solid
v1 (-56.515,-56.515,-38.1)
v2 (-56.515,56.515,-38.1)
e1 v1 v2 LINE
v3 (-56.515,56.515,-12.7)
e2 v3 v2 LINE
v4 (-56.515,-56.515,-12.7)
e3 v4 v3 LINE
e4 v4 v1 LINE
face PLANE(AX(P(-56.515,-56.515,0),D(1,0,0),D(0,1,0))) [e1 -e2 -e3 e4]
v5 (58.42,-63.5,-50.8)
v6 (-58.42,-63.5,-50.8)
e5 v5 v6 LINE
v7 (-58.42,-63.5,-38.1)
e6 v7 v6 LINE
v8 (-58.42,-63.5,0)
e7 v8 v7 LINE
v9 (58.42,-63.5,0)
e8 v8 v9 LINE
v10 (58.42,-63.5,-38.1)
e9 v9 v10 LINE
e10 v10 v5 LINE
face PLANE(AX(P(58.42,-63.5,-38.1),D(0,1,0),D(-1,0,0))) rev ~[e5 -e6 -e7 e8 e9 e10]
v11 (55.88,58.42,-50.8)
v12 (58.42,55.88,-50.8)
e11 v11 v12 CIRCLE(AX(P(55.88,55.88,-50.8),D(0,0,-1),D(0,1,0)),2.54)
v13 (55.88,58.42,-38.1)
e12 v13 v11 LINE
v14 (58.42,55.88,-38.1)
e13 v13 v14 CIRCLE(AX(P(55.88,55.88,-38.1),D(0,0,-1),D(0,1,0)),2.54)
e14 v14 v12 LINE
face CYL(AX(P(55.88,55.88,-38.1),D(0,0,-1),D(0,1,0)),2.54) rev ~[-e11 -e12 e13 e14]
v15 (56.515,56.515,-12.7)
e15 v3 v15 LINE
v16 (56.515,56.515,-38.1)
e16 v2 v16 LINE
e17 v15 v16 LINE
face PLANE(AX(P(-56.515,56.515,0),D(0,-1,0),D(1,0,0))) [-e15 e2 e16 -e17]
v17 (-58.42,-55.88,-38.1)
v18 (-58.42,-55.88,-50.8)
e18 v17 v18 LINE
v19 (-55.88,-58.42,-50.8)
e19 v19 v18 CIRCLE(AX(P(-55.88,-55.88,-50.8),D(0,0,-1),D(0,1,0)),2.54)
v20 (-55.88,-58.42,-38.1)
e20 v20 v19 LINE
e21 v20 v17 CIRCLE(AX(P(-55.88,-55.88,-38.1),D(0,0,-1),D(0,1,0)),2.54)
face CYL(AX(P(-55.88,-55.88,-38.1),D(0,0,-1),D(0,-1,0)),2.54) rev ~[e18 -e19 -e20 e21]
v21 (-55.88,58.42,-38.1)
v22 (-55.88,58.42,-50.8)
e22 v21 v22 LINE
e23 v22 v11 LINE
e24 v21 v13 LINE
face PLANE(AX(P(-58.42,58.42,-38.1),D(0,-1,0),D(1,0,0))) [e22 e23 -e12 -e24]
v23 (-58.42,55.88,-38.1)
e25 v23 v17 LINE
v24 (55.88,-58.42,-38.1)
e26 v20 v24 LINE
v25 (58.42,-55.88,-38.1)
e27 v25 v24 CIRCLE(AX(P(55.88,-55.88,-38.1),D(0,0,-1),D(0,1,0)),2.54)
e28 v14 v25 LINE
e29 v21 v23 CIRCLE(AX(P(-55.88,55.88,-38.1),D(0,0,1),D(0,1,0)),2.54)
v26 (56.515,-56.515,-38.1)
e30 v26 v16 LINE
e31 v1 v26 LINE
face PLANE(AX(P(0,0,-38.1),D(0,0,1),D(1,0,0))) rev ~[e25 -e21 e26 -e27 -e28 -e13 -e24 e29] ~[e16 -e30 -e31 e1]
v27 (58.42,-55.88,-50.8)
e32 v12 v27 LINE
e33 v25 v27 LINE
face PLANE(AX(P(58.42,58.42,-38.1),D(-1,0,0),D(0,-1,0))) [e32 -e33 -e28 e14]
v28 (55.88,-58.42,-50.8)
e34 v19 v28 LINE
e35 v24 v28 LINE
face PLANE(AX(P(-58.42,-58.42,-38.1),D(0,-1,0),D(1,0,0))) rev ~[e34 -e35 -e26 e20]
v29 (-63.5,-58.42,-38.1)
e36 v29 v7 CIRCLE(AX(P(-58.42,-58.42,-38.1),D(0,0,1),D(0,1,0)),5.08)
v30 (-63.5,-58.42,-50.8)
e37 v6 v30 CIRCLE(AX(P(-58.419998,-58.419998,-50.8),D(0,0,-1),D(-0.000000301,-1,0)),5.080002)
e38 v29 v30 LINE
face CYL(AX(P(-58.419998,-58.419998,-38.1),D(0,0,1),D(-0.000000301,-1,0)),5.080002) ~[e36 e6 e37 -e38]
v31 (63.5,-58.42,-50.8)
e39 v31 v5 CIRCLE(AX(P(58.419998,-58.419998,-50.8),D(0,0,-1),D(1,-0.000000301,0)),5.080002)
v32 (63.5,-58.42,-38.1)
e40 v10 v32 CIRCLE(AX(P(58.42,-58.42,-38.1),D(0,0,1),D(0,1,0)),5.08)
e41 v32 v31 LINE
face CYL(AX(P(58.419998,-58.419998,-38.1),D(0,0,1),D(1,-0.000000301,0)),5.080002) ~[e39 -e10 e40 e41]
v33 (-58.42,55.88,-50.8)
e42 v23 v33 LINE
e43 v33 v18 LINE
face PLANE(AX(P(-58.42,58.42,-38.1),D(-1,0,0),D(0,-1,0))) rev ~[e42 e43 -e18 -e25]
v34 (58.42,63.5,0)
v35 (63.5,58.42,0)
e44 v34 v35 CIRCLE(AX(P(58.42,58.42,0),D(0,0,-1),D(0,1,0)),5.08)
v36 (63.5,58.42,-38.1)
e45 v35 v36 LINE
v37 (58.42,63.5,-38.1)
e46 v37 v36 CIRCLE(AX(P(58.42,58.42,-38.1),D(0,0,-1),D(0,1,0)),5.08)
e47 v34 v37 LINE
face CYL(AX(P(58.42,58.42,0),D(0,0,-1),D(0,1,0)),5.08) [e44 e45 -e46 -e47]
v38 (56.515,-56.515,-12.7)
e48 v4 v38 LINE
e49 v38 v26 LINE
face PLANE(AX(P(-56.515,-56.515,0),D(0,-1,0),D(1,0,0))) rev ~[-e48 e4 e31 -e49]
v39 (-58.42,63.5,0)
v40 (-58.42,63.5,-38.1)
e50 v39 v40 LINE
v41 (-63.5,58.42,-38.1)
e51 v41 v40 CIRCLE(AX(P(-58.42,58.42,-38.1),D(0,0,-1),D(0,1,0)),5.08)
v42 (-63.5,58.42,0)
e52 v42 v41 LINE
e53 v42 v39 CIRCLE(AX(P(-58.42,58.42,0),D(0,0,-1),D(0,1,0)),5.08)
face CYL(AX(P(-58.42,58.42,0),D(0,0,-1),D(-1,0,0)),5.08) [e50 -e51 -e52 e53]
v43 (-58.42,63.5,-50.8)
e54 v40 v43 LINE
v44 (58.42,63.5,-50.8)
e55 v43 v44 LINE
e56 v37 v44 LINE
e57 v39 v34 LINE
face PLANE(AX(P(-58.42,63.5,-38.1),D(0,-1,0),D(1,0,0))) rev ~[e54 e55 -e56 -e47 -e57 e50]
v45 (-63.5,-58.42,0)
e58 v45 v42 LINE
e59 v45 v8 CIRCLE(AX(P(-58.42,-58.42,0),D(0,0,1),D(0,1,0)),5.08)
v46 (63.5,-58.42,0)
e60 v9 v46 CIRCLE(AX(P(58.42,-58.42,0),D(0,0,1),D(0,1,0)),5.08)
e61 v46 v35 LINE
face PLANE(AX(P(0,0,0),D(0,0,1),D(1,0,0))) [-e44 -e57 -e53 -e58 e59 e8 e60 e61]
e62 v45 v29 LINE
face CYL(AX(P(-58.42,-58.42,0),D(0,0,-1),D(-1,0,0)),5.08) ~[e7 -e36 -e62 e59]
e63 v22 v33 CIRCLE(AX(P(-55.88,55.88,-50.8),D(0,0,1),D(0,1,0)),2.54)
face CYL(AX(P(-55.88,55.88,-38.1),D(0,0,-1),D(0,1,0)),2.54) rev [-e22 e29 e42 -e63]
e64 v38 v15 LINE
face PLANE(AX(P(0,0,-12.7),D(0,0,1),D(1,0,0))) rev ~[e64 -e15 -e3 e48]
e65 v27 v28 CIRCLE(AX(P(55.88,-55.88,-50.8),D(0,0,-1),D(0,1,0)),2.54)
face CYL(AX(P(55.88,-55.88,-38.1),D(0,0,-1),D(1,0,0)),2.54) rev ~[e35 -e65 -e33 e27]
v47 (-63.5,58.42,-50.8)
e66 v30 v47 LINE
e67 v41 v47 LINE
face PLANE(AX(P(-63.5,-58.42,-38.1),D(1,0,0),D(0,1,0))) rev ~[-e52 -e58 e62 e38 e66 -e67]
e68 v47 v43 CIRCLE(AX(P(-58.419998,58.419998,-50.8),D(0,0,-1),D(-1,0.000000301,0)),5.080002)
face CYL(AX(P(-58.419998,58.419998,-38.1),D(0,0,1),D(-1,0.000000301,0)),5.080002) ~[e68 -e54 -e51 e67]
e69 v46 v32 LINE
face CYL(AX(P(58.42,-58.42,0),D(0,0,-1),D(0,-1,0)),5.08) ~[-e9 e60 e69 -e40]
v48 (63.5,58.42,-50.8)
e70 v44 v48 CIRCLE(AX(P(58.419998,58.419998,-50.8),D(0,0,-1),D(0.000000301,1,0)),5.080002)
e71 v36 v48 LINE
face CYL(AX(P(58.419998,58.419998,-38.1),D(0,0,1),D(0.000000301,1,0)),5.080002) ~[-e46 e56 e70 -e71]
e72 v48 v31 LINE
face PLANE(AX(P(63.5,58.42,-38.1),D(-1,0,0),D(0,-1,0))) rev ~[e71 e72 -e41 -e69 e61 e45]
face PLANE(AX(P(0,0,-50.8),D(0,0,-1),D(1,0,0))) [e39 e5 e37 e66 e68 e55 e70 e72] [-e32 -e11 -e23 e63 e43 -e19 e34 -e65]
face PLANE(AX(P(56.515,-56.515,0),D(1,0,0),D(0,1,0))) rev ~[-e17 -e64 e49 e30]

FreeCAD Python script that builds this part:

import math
import FreeCAD as App
import Part
import Sketcher

V = App.Vector
Q = App.Units.Quantity


def edges_at(feature, points):
    """Names of the edges that pass closest to the given points."""
    edges = feature.Shape.Edges
    near = lambda p: min(range(len(edges)), key=lambda i: edges[i].distToShape(Part.Vertex(*p))[0])
    return sorted({f"Edge{near(p) + 1}" for p in points})

doc = App.newDocument("Part")
params = doc.addObject("Spreadsheet::Sheet", "Params")
for row, (alias, value) in enumerate([
    ("sketch1_width", "5 in"),
    ("sketch1_width2", "4.45 in"),
    ("pad1_length", "1.5 in"),
    ("sketch2_width", "4.45 in"),
    ("pad2_length", "0.5 in"),
    ("fillet_radius", "0.2 in"),
    ("sketch3_radius", "0.2000001 in"),
    ("sketch3_width", "4.6 in"),
    ("pad3_length", "0.5 in"),
    ("fillet2_radius", "0.1 in"),
], start=1):
    params.set(f"A{row}", alias)
    params.set(f"B{row}", "=" + value)
    params.setAlias(f"B{row}", alias)

body = doc.addObject("PartDesign::Body", "Body")

sketch1 = body.newObject("Sketcher::SketchObject", "Sketch")
sketch1.AttachmentSupport = (doc.getObject("XY_Plane"), [""])
sketch1.MapMode = "FlatFace"
sketch1.addGeometry([
    Part.LineSegment(V(-64, 64, 0), V(-64, -64, 0)),
    Part.LineSegment(V(-64, -64, 0), V(64, -64, 0)),
    Part.LineSegment(V(64, -64, 0), V(64, 64, 0)),
    Part.LineSegment(V(64, 64, 0), V(-64, 64, 0)),
    Part.LineSegment(V(57, -57, 0), V(-57, -57, 0)),
    Part.LineSegment(V(-57, -57, 0), V(-57, 57, 0)),
    Part.LineSegment(V(-57, 57, 0), V(57, 57, 0)),
    Part.LineSegment(V(57, 57, 0), V(57, -57, 0)),
], False)
sketch1.addConstraint([
    Sketcher.Constraint("Coincident", 0, 2, 1, 1),
    Sketcher.Constraint("Coincident", 1, 2, 2, 1),
    Sketcher.Constraint("Coincident", 2, 2, 3, 1),
    Sketcher.Constraint("Coincident", 3, 2, 0, 1),
    Sketcher.Constraint("Coincident", 4, 2, 5, 1),
    Sketcher.Constraint("Coincident", 5, 2, 6, 1),
    Sketcher.Constraint("Coincident", 6, 2, 7, 1),
    Sketcher.Constraint("Coincident", 7, 2, 4, 1),
    Sketcher.Constraint("Vertical", 0),
    Sketcher.Constraint("Horizontal", 1),
    Sketcher.Constraint("Vertical", 2),
    Sketcher.Constraint("Horizontal", 3),
    Sketcher.Constraint("Horizontal", 4),
    Sketcher.Constraint("Vertical", 5),
    Sketcher.Constraint("Horizontal", 6),
    Sketcher.Constraint("Vertical", 7),
    Sketcher.Constraint("Symmetric", 0, 2, 2, 2, -1, 1),
    Sketcher.Constraint("Symmetric", 4, 2, 6, 2, -1, 1),
    Sketcher.Constraint("Equal", 3, 0),
    Sketcher.Constraint("Equal", 6, 5),
    Sketcher.Constraint("DistanceX", 1, 1, 1, 2, Q("5 in")),
    Sketcher.Constraint("DistanceX", 4, 2, 4, 1, Q("4.45 in")),
])
sketch1.setExpression("Constraints[20]", "Params.sketch1_width")
sketch1.setExpression("Constraints[21]", "Params.sketch1_width2")
pad1 = body.newObject("PartDesign::Pad", "Pad")
pad1.Profile = sketch1
pad1.setExpression("Length", "Params.pad1_length")
pad1.Reversed = True

sketch2 = body.newObject("Sketcher::SketchObject", "Sketch001")
sketch2.AttachmentSupport = (doc.getObject("XY_Plane"), [""])
sketch2.MapMode = "FlatFace"
sketch2.addGeometry([
    Part.LineSegment(V(-57, 57, 0), V(-57, -57, 0)),
    Part.LineSegment(V(-57, -57, 0), V(57, -57, 0)),
    Part.LineSegment(V(57, -57, 0), V(57, 57, 0)),
    Part.LineSegment(V(57, 57, 0), V(-57, 57, 0)),
], False)
sketch2.addConstraint([
    Sketcher.Constraint("Coincident", 0, 2, 1, 1),
    Sketcher.Constraint("Coincident", 1, 2, 2, 1),
    Sketcher.Constraint("Coincident", 2, 2, 3, 1),
    Sketcher.Constraint("Coincident", 3, 2, 0, 1),
    Sketcher.Constraint("Vertical", 0),
    Sketcher.Constraint("Horizontal", 1),
    Sketcher.Constraint("Vertical", 2),
    Sketcher.Constraint("Horizontal", 3),
    Sketcher.Constraint("Symmetric", 0, 2, 2, 2, -1, 1),
    Sketcher.Constraint("Equal", 3, 0),
    Sketcher.Constraint("DistanceX", 1, 1, 1, 2, Q("4.45 in")),
])
sketch2.setExpression("Constraints[10]", "Params.sketch2_width")
pad2 = body.newObject("PartDesign::Pad", "Pad001")
pad2.Profile = sketch2
pad2.setExpression("Length", "Params.pad2_length")
pad2.Reversed = True
doc.recompute()

fillet = body.newObject("PartDesign::Fillet", "Fillet")
fillet.Base = (pad2, edges_at(pad2, [
    (-63.5, -63.5, -19.05),
    (-63.5, 63.5, -19.05),
    (63.5, 63.5, -19.05),
    (63.5, -63.5, -19.05),
]))
fillet.setExpression("Radius", "Params.fillet_radius")

sketch3 = body.newObject("Sketcher::SketchObject", "Sketch002")
sketch3.AttachmentSupport = (doc.getObject("XY_Plane"), [""])
sketch3.MapMode = "FlatFace"
sketch3.AttachmentOffset = App.Placement(V(0, 0, -1.5 * 25.4), App.Rotation())
sketch3.addGeometry([
    Part.ArcOfCircle(Part.Circle(V(58, -58, 0), V(0, 0, 1), 5), math.radians(-90), math.radians(0)),
    Part.LineSegment(V(58, -64, 0), V(-58, -64, 0)),
    Part.ArcOfCircle(Part.Circle(V(-58, -58, 0), V(0, 0, 1), 5), math.radians(-180), math.radians(-90)),
    Part.LineSegment(V(-64, -58, 0), V(-64, 58, 0)),
    Part.ArcOfCircle(Part.Circle(V(-58, 58, 0), V(0, 0, 1), 5), math.radians(90), math.radians(180)),
    Part.LineSegment(V(-58, 64, 0), V(58, 64, 0)),
    Part.ArcOfCircle(Part.Circle(V(58, 58, 0), V(0, 0, 1), 5), math.radians(0), math.radians(90)),
    Part.LineSegment(V(64, 58, 0), V(64, -58, 0)),
    Part.LineSegment(V(58, 58, 0), V(-58, 58, 0)),
    Part.LineSegment(V(-58, 58, 0), V(-58, -58, 0)),
    Part.LineSegment(V(-58, -58, 0), V(58, -58, 0)),
    Part.LineSegment(V(58, -58, 0), V(58, 58, 0)),
], False)
sketch3.addConstraint([
    Sketcher.Constraint("Tangent", 0, 1, 1, 1),
    Sketcher.Constraint("Tangent", 1, 2, 2, 2),
    Sketcher.Constraint("Tangent", 2, 1, 3, 1),
    Sketcher.Constraint("Tangent", 3, 2, 4, 2),
    Sketcher.Constraint("Tangent", 4, 1, 5, 1),
    Sketcher.Constraint("Tangent", 5, 2, 6, 2),
    Sketcher.Constraint("Tangent", 6, 1, 7, 1),
    Sketcher.Constraint("Tangent", 7, 2, 0, 2),
    Sketcher.Constraint("Coincident", 8, 2, 9, 1),
    Sketcher.Constraint("Coincident", 9, 2, 10, 1),
    Sketcher.Constraint("Coincident", 10, 2, 11, 1),
    Sketcher.Constraint("Coincident", 11, 2, 8, 1),
    Sketcher.Constraint("Horizontal", 1),
    Sketcher.Constraint("Vertical", 3),
    Sketcher.Constraint("Horizontal", 5),
    Sketcher.Constraint("Vertical", 7),
    Sketcher.Constraint("Horizontal", 8),
    Sketcher.Constraint("Vertical", 9),
    Sketcher.Constraint("Horizontal", 10),
    Sketcher.Constraint("Vertical", 11),
    Sketcher.Constraint("Coincident", 8, 2, 4, 3),
    Sketcher.Constraint("Coincident", 9, 2, 2, 3),
    Sketcher.Constraint("Coincident", 10, 2, 0, 3),
    Sketcher.Constraint("Equal", 4, 6),
    Sketcher.Constraint("Symmetric", 0, 3, 4, 3, -1, 1),
    Sketcher.Constraint("Equal", 10, 3),
    Sketcher.Constraint("Radius", 0, Q("0.2000001 in")),
    Sketcher.Constraint("DistanceX", 1, 2, 1, 1, Q("4.6 in")),
])
sketch3.setExpression("Constraints[26]", "Params.sketch3_radius")
sketch3.setExpression("Constraints[27]", "Params.sketch3_width")
pad3 = body.newObject("PartDesign::Pad", "Pad002")
pad3.Profile = sketch3
pad3.setExpression("Length", "Params.pad3_length")
pad3.Reversed = True
doc.recompute()

fillet2 = body.newObject("PartDesign::Fillet", "Fillet001")
fillet2.Base = (pad3, edges_at(pad3, [
    (-58.42, -58.42, -44.45),
    (58.42, -58.42, -44.45),
    (58.42, 58.42, -44.45),
    (-58.42, 58.42, -44.45),
]))
fillet2.setExpression("Radius", "Params.fillet2_radius")

doc.recompute()
